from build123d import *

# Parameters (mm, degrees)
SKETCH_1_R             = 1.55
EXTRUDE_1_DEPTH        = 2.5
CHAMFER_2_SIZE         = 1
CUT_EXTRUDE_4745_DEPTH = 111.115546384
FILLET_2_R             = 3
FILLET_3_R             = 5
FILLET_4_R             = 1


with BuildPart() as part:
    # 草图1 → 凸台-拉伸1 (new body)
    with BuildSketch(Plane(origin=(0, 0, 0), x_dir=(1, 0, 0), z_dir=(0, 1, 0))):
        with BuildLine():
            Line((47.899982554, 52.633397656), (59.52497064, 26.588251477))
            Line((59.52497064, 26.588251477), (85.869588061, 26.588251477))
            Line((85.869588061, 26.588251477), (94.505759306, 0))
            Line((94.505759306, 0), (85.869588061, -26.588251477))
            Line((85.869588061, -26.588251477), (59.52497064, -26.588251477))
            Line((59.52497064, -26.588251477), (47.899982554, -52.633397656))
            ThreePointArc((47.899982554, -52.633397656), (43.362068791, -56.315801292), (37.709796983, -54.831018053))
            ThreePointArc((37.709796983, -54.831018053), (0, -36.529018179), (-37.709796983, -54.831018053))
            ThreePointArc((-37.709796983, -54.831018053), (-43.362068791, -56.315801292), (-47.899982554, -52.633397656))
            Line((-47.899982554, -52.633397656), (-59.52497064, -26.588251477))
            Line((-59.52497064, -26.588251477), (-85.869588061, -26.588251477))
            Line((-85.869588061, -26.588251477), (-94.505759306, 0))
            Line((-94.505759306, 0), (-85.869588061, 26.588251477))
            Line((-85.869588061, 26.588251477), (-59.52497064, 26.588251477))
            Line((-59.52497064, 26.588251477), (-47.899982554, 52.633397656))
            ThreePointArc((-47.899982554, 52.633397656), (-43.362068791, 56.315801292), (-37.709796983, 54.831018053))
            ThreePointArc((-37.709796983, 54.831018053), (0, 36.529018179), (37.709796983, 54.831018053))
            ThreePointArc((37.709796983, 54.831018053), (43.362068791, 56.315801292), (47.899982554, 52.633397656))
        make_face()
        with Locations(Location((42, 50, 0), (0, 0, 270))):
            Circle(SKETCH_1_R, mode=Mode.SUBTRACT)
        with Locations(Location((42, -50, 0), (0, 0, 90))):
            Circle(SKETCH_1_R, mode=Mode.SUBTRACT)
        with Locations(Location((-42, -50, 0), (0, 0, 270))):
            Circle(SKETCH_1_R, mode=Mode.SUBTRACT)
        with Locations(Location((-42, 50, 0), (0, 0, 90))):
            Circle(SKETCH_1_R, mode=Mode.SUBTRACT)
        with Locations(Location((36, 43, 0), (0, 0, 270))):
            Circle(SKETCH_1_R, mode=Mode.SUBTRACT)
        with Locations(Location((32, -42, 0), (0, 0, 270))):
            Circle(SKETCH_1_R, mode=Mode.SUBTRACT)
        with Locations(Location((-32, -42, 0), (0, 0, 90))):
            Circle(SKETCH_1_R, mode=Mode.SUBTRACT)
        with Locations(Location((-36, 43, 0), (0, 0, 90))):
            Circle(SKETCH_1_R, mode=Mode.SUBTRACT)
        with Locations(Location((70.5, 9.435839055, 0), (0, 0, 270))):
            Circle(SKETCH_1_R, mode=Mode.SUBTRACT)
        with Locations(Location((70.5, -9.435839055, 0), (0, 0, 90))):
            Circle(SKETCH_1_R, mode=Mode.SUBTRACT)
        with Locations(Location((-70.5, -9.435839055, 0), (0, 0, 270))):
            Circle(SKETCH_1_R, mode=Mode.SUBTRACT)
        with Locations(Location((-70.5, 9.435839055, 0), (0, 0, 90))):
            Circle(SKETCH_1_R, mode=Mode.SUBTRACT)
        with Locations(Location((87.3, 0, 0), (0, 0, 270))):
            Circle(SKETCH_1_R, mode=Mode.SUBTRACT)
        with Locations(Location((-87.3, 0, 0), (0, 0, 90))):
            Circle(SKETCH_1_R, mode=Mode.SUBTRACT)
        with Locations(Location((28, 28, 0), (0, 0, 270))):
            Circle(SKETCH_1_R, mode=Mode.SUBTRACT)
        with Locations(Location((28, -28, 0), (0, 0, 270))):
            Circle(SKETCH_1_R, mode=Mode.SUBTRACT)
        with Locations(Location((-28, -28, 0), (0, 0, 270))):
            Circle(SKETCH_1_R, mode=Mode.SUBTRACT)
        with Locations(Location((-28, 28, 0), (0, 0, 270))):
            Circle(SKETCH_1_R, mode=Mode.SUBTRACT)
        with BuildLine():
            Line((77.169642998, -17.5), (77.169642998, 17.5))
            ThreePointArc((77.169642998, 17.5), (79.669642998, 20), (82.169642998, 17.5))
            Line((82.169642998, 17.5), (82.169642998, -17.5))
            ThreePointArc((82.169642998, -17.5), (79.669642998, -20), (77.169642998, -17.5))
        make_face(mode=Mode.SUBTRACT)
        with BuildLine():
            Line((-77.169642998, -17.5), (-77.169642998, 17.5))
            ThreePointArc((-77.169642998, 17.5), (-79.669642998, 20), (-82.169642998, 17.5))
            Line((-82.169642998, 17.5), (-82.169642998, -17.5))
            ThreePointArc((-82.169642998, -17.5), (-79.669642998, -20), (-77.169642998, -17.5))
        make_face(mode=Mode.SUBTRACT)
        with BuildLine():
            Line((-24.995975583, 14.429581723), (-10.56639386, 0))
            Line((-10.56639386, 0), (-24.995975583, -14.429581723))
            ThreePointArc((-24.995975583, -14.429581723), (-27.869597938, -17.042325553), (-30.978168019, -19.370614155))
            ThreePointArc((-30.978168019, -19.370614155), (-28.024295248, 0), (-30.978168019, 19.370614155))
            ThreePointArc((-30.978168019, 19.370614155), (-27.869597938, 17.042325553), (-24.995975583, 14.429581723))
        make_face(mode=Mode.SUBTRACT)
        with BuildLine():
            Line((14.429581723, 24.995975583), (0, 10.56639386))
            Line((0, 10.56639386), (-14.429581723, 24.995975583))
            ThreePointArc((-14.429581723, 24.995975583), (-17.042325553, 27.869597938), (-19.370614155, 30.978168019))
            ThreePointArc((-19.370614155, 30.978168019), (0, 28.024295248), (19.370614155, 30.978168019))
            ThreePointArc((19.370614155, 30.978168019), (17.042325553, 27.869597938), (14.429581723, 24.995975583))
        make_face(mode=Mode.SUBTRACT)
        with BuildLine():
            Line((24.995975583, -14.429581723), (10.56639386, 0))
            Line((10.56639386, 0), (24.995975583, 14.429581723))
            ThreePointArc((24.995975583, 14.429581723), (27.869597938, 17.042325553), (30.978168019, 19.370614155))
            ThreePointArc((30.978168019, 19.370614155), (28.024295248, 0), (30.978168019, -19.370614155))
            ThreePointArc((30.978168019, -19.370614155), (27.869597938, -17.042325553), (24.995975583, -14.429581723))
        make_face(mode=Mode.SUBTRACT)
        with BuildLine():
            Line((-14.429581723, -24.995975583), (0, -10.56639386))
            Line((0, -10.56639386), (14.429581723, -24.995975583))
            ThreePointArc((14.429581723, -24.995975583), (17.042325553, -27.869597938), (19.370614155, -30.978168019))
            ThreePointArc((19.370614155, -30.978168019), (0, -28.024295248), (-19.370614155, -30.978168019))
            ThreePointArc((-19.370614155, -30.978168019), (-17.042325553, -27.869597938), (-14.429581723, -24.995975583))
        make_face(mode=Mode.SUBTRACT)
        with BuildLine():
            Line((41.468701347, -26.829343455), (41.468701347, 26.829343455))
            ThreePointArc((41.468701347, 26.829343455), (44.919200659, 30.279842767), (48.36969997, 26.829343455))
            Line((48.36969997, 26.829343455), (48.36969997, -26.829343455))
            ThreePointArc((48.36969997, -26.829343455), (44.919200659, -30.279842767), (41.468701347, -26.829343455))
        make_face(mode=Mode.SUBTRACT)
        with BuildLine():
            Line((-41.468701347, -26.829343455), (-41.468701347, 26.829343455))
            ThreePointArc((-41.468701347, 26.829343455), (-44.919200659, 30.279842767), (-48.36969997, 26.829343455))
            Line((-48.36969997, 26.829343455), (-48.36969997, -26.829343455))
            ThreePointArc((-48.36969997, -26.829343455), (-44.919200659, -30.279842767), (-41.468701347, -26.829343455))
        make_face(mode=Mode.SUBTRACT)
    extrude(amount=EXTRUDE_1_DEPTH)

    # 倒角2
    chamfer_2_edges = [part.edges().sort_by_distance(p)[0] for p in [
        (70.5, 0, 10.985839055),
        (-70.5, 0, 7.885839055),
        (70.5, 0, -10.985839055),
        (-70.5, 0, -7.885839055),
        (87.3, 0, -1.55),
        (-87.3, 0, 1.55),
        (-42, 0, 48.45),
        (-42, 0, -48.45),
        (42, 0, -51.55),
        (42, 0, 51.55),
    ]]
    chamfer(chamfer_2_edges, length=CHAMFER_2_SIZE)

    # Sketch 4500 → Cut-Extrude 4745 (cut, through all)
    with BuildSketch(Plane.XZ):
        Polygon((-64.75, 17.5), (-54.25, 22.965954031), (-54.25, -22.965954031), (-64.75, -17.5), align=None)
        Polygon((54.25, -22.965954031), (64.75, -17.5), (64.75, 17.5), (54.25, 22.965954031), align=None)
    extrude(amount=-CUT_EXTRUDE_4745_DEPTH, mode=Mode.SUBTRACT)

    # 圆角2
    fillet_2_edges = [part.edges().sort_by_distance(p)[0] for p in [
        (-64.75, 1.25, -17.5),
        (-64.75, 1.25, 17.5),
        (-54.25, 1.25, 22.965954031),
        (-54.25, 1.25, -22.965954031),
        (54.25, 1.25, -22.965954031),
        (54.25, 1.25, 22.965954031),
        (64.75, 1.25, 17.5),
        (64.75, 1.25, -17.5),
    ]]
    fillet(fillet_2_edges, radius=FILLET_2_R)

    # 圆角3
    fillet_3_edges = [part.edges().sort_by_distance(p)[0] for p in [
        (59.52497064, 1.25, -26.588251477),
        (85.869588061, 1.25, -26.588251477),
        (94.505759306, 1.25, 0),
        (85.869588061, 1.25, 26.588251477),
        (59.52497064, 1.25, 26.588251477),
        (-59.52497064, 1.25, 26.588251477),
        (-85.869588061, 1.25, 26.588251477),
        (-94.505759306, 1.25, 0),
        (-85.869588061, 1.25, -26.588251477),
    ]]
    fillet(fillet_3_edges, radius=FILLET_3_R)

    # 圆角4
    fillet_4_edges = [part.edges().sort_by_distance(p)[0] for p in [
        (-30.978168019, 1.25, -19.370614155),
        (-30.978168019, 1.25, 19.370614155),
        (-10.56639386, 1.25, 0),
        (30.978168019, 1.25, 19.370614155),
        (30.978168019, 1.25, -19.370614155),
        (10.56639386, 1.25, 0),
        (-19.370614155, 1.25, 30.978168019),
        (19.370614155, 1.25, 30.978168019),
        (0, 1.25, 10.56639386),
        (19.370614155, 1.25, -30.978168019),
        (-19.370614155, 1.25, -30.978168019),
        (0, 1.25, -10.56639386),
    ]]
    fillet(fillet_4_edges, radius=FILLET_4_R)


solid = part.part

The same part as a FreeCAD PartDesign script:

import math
import FreeCAD as App
import Part
import Sketcher
from FreeCAD import Vector
Q = App.Units.Quantity


def edges_at(feature, points):
    """Names of the edges that pass closest to the given points."""
    edges = feature.Shape.Edges
    near = lambda p: min(range(len(edges)), key=lambda i: edges[i].distToShape(Part.Vertex(*p))[0])
    return sorted({f"Edge{near(p) + 1}" for p in points})


def add_polygon(sketch, points):
    """Adds a closed chain of lines whose ends are joined by coincident constraints."""
    first, n = sketch.GeometryCount, len(points)
    for a, b in zip(points, points[1:] + points[:1]):
        sketch.addGeometry(Part.LineSegment(App.Vector(*a, 0), App.Vector(*b, 0)), False)
    for i in range(n):
        sketch.addConstraint(Sketcher.Constraint("Coincident", first + i, 2, first + (i + 1) % n, 1))

doc = App.newDocument("Part")
body = doc.addObject("PartDesign::Body", "Body")

sketch1 = body.newObject("Sketcher::SketchObject", "Sketch")
sketch1.AttachmentSupport = (doc.getObject("XZ_Plane"), [""])
sketch1.MapMode = "FlatFace"
sketch1.addGeometry([
    Part.LineSegment(Vector(59.5, -26.6, 0), Vector(47.9, -52.6, 0)),
    Part.ArcOfCircle(Part.Circle(Vector(42, -50, 0), Vector(0, 0, 1), 6.5), math.radians(-132), math.radians(-24)),
    Part.ArcOfCircle(Part.Circle(Vector(0, -84.5, 0), Vector(0, 0, 1), 48), math.radians(38), math.radians(142)),
    Part.ArcOfCircle(Part.Circle(Vector(-42, -50, 0), Vector(0, 0, 1), 6.5), math.radians(-156), math.radians(-48)),
    Part.LineSegment(Vector(-47.9, -52.6, 0), Vector(-59.5, -26.6, 0)),
    Part.LineSegment(Vector(-59.5, -26.6, 0), Vector(-85.9, -26.6, 0)),
    Part.LineSegment(Vector(-85.9, -26.6, 0), Vector(-94.5, 0, 0)),
    Part.LineSegment(Vector(-94.5, 0, 0), Vector(-85.9, 26.6, 0)),
    Part.LineSegment(Vector(-85.9, 26.6, 0), Vector(-59.5, 26.6, 0)),
    Part.LineSegment(Vector(-59.5, 26.6, 0), Vector(-47.9, 52.6, 0)),
    Part.ArcOfCircle(Part.Circle(Vector(-42, 50, 0), Vector(0, 0, 1), 6.5), math.radians(48), math.radians(156)),
    Part.ArcOfCircle(Part.Circle(Vector(0, 84.5, 0), Vector(0, 0, 1), 48), math.radians(-142), math.radians(-38)),
    Part.ArcOfCircle(Part.Circle(Vector(42, 50, 0), Vector(0, 0, 1), 6.5), math.radians(24), math.radians(132)),
    Part.LineSegment(Vector(47.9, 52.6, 0), Vector(59.5, 26.6, 0)),
    Part.LineSegment(Vector(59.5, 26.6, 0), Vector(85.9, 26.6, 0)),
    Part.LineSegment(Vector(85.9, 26.6, 0), Vector(94.5, 0, 0)),
    Part.LineSegment(Vector(94.5, 0, 0), Vector(85.9, -26.6, 0)),
    Part.LineSegment(Vector(85.9, -26.6, 0), Vector(59.5, -26.6, 0)),
    Part.Circle(Vector(42, 50, 0), Vector(0, 0, 1), 1.6),
    Part.Circle(Vector(32, 42, 0), Vector(0, 0, 1), 1.6),
    Part.Circle(Vector(28, 28, 0), Vector(0, 0, 1), 1.6),
    Part.Circle(Vector(70.5, 9.4, 0), Vector(0, 0, 1), 1.6),
    Part.Circle(Vector(-42, 50, 0), Vector(0, 0, 1), 1.6),
    Part.Circle(Vector(-32, 42, 0), Vector(0, 0, 1), 1.6),
    Part.Circle(Vector(-28, 28, 0), Vector(0, 0, 1), 1.6),
    Part.LineSegment(Vector(-14.4, 25, 0), Vector(0, 10.6, 0)),
    Part.LineSegment(Vector(0, 10.6, 0), Vector(14.4, 25, 0)),
    Part.ArcOfCircle(Part.Circle(Vector(-14.5, 53.9, 0), Vector(0, 0, 1), 40.9), math.radians(-45), math.radians(-34.11)),
    Part.ArcOfCircle(Part.Circle(Vector(0, 93, 0), Vector(0, 0, 1), 65), math.radians(-107), math.radians(-73)),
    Part.ArcOfCircle(Part.Circle(Vector(14.5, 53.9, 0), Vector(0, 0, 1), 40.9), math.radians(-145.89), math.radians(-135)),
    Part.Circle(Vector(-70.5, 9.4, 0), Vector(0, 0, 1), 1.6),
    Part.Circle(Vector(87.3, 0, 0), Vector(0, 0, 1), 1.6),
    Part.LineSegment(Vector(77.2, 17.5, 0), Vector(77.2, -17.5, 0)),
    Part.ArcOfCircle(Part.Circle(Vector(79.7, -17.5, 0), Vector(0, 0, 1), 2.5), math.radians(180), math.radians(360)),
    Part.LineSegment(Vector(82.2, -17.5, 0), Vector(82.2, 17.5, 0)),
    Part.ArcOfCircle(Part.Circle(Vector(79.7, 17.5, 0), Vector(0, 0, 1), 2.5), math.radians(0), math.radians(180)),
    Part.Circle(Vector(70.5, -9.4, 0), Vector(0, 0, 1), 1.6),
    Part.LineSegment(Vector(41.5, 26.8, 0), Vector(41.5, -26.8, 0)),
    Part.ArcOfCircle(Part.Circle(Vector(44.9, -26.8, 0), Vector(0, 0, 1), 3.5), math.radians(180), math.radians(360)),
    Part.LineSegment(Vector(48.4, -26.8, 0), Vector(48.4, 26.8, 0)),
    Part.ArcOfCircle(Part.Circle(Vector(44.9, 26.8, 0), Vector(0, 0, 1), 3.5), math.radians(0), math.radians(180)),
    Part.LineSegment(Vector(25, 14.4, 0), Vector(10.6, 0, 0)),
    Part.LineSegment(Vector(10.6, 0, 0), Vector(25, -14.4, 0)),
    Part.ArcOfCircle(Part.Circle(Vector(53.9, 14.5, 0), Vector(0, 0, 1), 40.9), math.radians(-135), math.radians(-124.11)),
    Part.ArcOfCircle(Part.Circle(Vector(93, 0, 0), Vector(0, 0, 1), 65), math.radians(163), math.radians(197)),
    Part.ArcOfCircle(Part.Circle(Vector(53.9, -14.5, 0), Vector(0, 0, 1), 40.9), math.radians(124.11), math.radians(135)),
    Part.Circle(Vector(28, -28, 0), Vector(0, 0, 1), 1.6),
    Part.Circle(Vector(36, -43, 0), Vector(0, 0, 1), 1.6),
    Part.Circle(Vector(42, -50, 0), Vector(0, 0, 1), 1.6),
    Part.LineSegment(Vector(-25, -14.4, 0), Vector(-10.6, 0, 0)),
    Part.LineSegment(Vector(-10.6, 0, 0), Vector(-25, 14.4, 0)),
    Part.ArcOfCircle(Part.Circle(Vector(-53.9, -14.5, 0), Vector(0, 0, 1), 40.9), math.radians(45), math.radians(55.89)),
    Part.ArcOfCircle(Part.Circle(Vector(-93, 0, 0), Vector(0, 0, 1), 65), math.radians(-17), math.radians(17)),
    Part.ArcOfCircle(Part.Circle(Vector(-53.9, 14.5, 0), Vector(0, 0, 1), 40.9), math.radians(-55.89), math.radians(-45)),
    Part.LineSegment(Vector(14.4, -25, 0), Vector(0, -10.6, 0)),
    Part.LineSegment(Vector(0, -10.6, 0), Vector(-14.4, -25, 0)),
    Part.ArcOfCircle(Part.Circle(Vector(14.5, -53.9, 0), Vector(0, 0, 1), 40.9), math.radians(135), math.radians(145.89)),
    Part.ArcOfCircle(Part.Circle(Vector(0, -93, 0), Vector(0, 0, 1), 65), math.radians(73), math.radians(107)),
    Part.ArcOfCircle(Part.Circle(Vector(-14.5, -53.9, 0), Vector(0, 0, 1), 40.9), math.radians(34.11), math.radians(45)),
    Part.ArcOfCircle(Part.Circle(Vector(-44.9, 26.8, 0), Vector(0, 0, 1), 3.5), math.radians(0), math.radians(180)),
    Part.LineSegment(Vector(-48.4, 26.8, 0), Vector(-48.4, -26.8, 0)),
    Part.ArcOfCircle(Part.Circle(Vector(-44.9, -26.8, 0), Vector(0, 0, 1), 3.5), math.radians(180), math.radians(360)),
    Part.LineSegment(Vector(-41.5, -26.8, 0), Vector(-41.5, 26.8, 0)),
    Part.ArcOfCircle(Part.Circle(Vector(-79.7, 17.5, 0), Vector(0, 0, 1), 2.5), math.radians(0), math.radians(180)),
    Part.LineSegment(Vector(-82.2, 17.5, 0), Vector(-82.2, -17.5, 0)),
    Part.ArcOfCircle(Part.Circle(Vector(-79.7, -17.5, 0), Vector(0, 0, 1), 2.5), math.radians(180), math.radians(360)),
    Part.LineSegment(Vector(-77.2, -17.5, 0), Vector(-77.2, 17.5, 0)),
    Part.Circle(Vector(-87.3, 0, 0), Vector(0, 0, 1), 1.6),
    Part.Circle(Vector(-70.5, -9.4, 0), Vector(0, 0, 1), 1.6),
    Part.Circle(Vector(-28, -28, 0), Vector(0, 0, 1), 1.6),
    Part.Circle(Vector(-36, -43, 0), Vector(0, 0, 1), 1.6),
    Part.Circle(Vector(-42, -50, 0), Vector(0, 0, 1), 1.6),
], False)
sketch1.addConstraint([
    Sketcher.Constraint("Tangent", 0, 2, 1, 2),
    Sketcher.Constraint("Coincident", 1, 1, 2, 1),
    Sketcher.Constraint("Coincident", 2, 2, 3, 2),
    Sketcher.Constraint("Tangent", 3, 1, 4, 1),
    Sketcher.Constraint("Coincident", 4, 2, 5, 1),
    Sketcher.Constraint("Coincident", 5, 2, 6, 1),
    Sketcher.Constraint("Coincident", 6, 2, 7, 1),
    Sketcher.Constraint("Coincident", 7, 2, 8, 1),
    Sketcher.Constraint("Coincident", 8, 2, 9, 1),
    Sketcher.Constraint("Tangent", 9, 2, 10, 2),
    Sketcher.Constraint("Coincident", 10, 1, 11, 1),
    Sketcher.Constraint("Coincident", 11, 2, 12, 2),
    Sketcher.Constraint("Tangent", 12, 1, 13, 1),
    Sketcher.Constraint("Coincident", 13, 2, 14, 1),
    Sketcher.Constraint("Coincident", 14, 2, 15, 1),
    Sketcher.Constraint("Coincident", 15, 2, 16, 1),
    Sketcher.Constraint("Coincident", 16, 2, 17, 1),
    Sketcher.Constraint("Coincident", 17, 2, 0, 1),
    Sketcher.Constraint("Coincident", 25, 2, 26, 1),
    Sketcher.Constraint("Tangent", 26, 2, 27, 1),
    Sketcher.Constraint("Coincident", 27, 2, 28, 2),
    Sketcher.Constraint("Coincident", 28, 1, 29, 1),
    Sketcher.Constraint("Tangent", 29, 2, 25, 1),
    Sketcher.Constraint("Tangent", 32, 2, 33, 1),
    Sketcher.Constraint("Tangent", 33, 2, 34, 1),
    Sketcher.Constraint("Tangent", 34, 2, 35, 1),
    Sketcher.Constraint("Tangent", 35, 2, 32, 1),
    Sketcher.Constraint("Tangent", 37, 2, 38, 1),
    Sketcher.Constraint("Tangent", 38, 2, 39, 1),
    Sketcher.Constraint("Tangent", 39, 2, 40, 1),
    Sketcher.Constraint("Tangent", 40, 2, 37, 1),
    Sketcher.Constraint("Coincident", 41, 2, 42, 1),
    Sketcher.Constraint("Tangent", 42, 2, 43, 1),
    Sketcher.Constraint("Coincident", 43, 2, 44, 2),
    Sketcher.Constraint("Coincident", 44, 1, 45, 1),
    Sketcher.Constraint("Tangent", 45, 2, 41, 1),
    Sketcher.Constraint("Coincident", 49, 2, 50, 1),
    Sketcher.Constraint("Tangent", 50, 2, 51, 1),
    Sketcher.Constraint("Coincident", 51, 2, 52, 2),
    Sketcher.Constraint("Coincident", 52, 1, 53, 1),
    Sketcher.Constraint("Tangent", 53, 2, 49, 1),
    Sketcher.Constraint("Coincident", 54, 2, 55, 1),
    Sketcher.Constraint("Tangent", 55, 2, 56, 1),
    Sketcher.Constraint("Coincident", 56, 2, 57, 2),
    Sketcher.Constraint("Coincident", 57, 1, 58, 1),
    Sketcher.Constraint("Tangent", 58, 2, 54, 1),
    Sketcher.Constraint("Tangent", 59, 2, 60, 1),
    Sketcher.Constraint("Tangent", 60, 2, 61, 1),
    Sketcher.Constraint("Tangent", 61, 2, 62, 1),
    Sketcher.Constraint("Tangent", 62, 2, 59, 1),
    Sketcher.Constraint("Tangent", 63, 2, 64, 1),
    Sketcher.Constraint("Tangent", 64, 2, 65, 1),
    Sketcher.Constraint("Tangent", 65, 2, 66, 1),
    Sketcher.Constraint("Tangent", 66, 2, 63, 1),
    Sketcher.Constraint("Horizontal", 5),
    Sketcher.Constraint("Horizontal", 8),
    Sketcher.Constraint("Horizontal", 14),
    Sketcher.Constraint("Horizontal", 17),
    Sketcher.Constraint("Vertical", 32),
    Sketcher.Constraint("Vertical", 34),
    Sketcher.Constraint("Vertical", 37),
    Sketcher.Constraint("Vertical", 39),
    Sketcher.Constraint("Vertical", 60),
    Sketcher.Constraint("Vertical", 62),
    Sketcher.Constraint("Vertical", 64),
    Sketcher.Constraint("Vertical", 66),
    Sketcher.Constraint("Coincident", 18, 3, 12, 3),
    Sketcher.Constraint("Coincident", 22, 3, 10, 3),
    Sketcher.Constraint("Coincident", 48, 3, 1, 3),
    Sketcher.Constraint("Coincident", 71, 3, 3, 3),
    Sketcher.Constraint("Equal", 1, 3),
    Sketcher.Constraint("Equal", 3, 10),
    Sketcher.Constraint("Equal", 2, 11),
    Sketcher.Constraint("Equal", 10, 12),
    Sketcher.Constraint("Equal", 18, 19),
    Sketcher.Constraint("Equal", 19, 20),
    Sketcher.Constraint("Equal", 20, 21),
    Sketcher.Constraint("Equal", 21, 22),
    Sketcher.Constraint("Equal", 22, 23),
    Sketcher.Constraint("Equal", 23, 24),
    Sketcher.Constraint("Equal", 27, 29),
    Sketcher.Constraint("Equal", 24, 30),
    Sketcher.Constraint("Equal", 30, 31),
    Sketcher.Constraint("Equal", 31, 36),
    Sketcher.Constraint("Equal", 29, 43),
    Sketcher.Constraint("Equal", 28, 44),
    Sketcher.Constraint("Equal", 43, 45),
    Sketcher.Constraint("Equal", 36, 46),
    Sketcher.Constraint("Equal", 46, 47),
    Sketcher.Constraint("Equal", 47, 48),
    Sketcher.Constraint("Equal", 45, 51),
    Sketcher.Constraint("Equal", 44, 52),
    Sketcher.Constraint("Equal", 51, 53),
    Sketcher.Constraint("Equal", 53, 56),
    Sketcher.Constraint("Equal", 52, 57),
    Sketcher.Constraint("Equal", 56, 58),
    Sketcher.Constraint("Equal", 40, 59),
    Sketcher.Constraint("Equal", 35, 63),
    Sketcher.Constraint("Equal", 48, 67),
    Sketcher.Constraint("Equal", 67, 68),
    Sketcher.Constraint("Equal", 68, 69),
    Sketcher.Constraint("Equal", 69, 70),
    Sketcher.Constraint("Equal", 70, 71),
    Sketcher.Constraint("Symmetric", 1, 3, 10, 3, -1, 1),
    Sketcher.Constraint("Symmetric", 2, 3, 11, 3, -1, 1),
    Sketcher.Constraint("Symmetric", 3, 3, 12, 3, -1, 1),
    Sketcher.Constraint("Symmetric", 30, 3, 36, 3, -1, 1),
    Sketcher.Constraint("Symmetric", 24, 3, 46, 3, -1, 1),
    Sketcher.Constraint("Symmetric", 43, 3, 51, 3, -1, 1),
    Sketcher.Constraint("Symmetric", 44, 3, 52, 3, -1, 1),
    Sketcher.Constraint("Symmetric", 45, 3, 53, 3, -1, 1),
    Sketcher.Constraint("Symmetric", 27, 3, 56, 3, -1, 1),
    Sketcher.Constraint("Symmetric", 28, 3, 57, 3, -1, 1),
    Sketcher.Constraint("Symmetric", 29, 3, 58, 3, -1, 1),
    Sketcher.Constraint("Symmetric", 38, 3, 59, 3, -1, 1),
    Sketcher.Constraint("Symmetric", 33, 3, 63, 3, -1, 1),
    Sketcher.Constraint("Symmetric", 31, 3, 67, 3, -1, 1),
    Sketcher.Constraint("Symmetric", 21, 3, 68, 3, -1, 1),
    Sketcher.Constraint("Symmetric", 20, 3, 69, 3, -1, 1),
    Sketcher.Constraint("Symmetric", 4, 2, 13, 2, -1, 1),
    Sketcher.Constraint("Symmetric", 6, 2, 15, 2, -1, 1),
    Sketcher.Constraint("Symmetric", 7, 2, 16, 2, -1, 1),
    Sketcher.Constraint("Symmetric", 41, 2, 49, 2, -1, 1),
    Sketcher.Constraint("Symmetric", 25, 2, 54, 2, -1, 1),
    Sketcher.Constraint("Symmetric", 1, 3, 3, 3, -2),
    Sketcher.Constraint("Symmetric", 19, 3, 23, 3, -2),
    Sketcher.Constraint("Symmetric", 20, 3, 24, 3, -2),
    Sketcher.Constraint("Symmetric", 27, 3, 29, 3, -2),
    Sketcher.Constraint("Symmetric", 21, 3, 30, 3, -2),
    Sketcher.Constraint("Symmetric", 45, 3, 51, 3, -2),
    Sketcher.Constraint("Symmetric", 47, 3, 70, 3, -2),
    Sketcher.Constraint("Symmetric", 8, 2, 13, 2, -2),
    Sketcher.Constraint("PointOnObject", 2, 3, -2),
    Sketcher.Constraint("PointOnObject", 28, 3, -2),
    Sketcher.Constraint("PointOnObject", 31, 3, -1),
    Sketcher.Constraint("PointOnObject", 44, 3, -1),
    Sketcher.Constraint("PointOnObject", 6, 2, -1),
    Sketcher.Constraint("PointOnObject", 25, 2, -2),
    Sketcher.Constraint("PointOnObject", 41, 2, -1),
    Sketcher.Constraint("Parallel", 0, 9),
    Sketcher.Constraint("Parallel", 6, 15),
    Sketcher.Constraint("Perpendicular", 25, 26),
    Sketcher.Constraint("Parallel", 26, 41),
    Sketcher.Constraint("Horizontal", 40, 3, 59, 3),
    Sketcher.Constraint("Horizontal", 38, 3, 61, 3),
    Sketcher.Constraint("Horizontal", 35, 3, 63, 3),
    Sketcher.Constraint("Horizontal", 33, 3, 65, 3),
    Sketcher.Constraint("Vertical", 5, 2, 7, 2),
    Sketcher.Constraint("Equal", 26, 41),
    Sketcher.Constraint("Radius", 2, 48.0),
    Sketcher.Constraint("Diameter", 18, 3.1),
    Sketcher.Constraint("Radius", 33, 2.5),
    Sketcher.Constraint("DistanceY", 32, 2, 32, 1, 35.0),
    Sketcher.Constraint("DistanceX", -1, 1, 1, 3, 42.0),
    Sketcher.Constraint("DistanceY", 1, 3, -1, 1, 50.0),
    Sketcher.Constraint("DistanceX", -1, 1, 19, 3, 32.0),
    Sketcher.Constraint("DistanceY", -1, 1, 19, 3, 42.0),
    Sketcher.Constraint("DistanceX", -1, 1, 20, 3, 28.0),
    Sketcher.Constraint("DistanceY", -1, 1, 20, 3, 28.0),
    Sketcher.Constraint("DistanceX", -1, 1, 47, 3, 36.0),
    Sketcher.Constraint("DistanceY", 47, 3, -1, 1, 43.0),
    Sketcher.Constraint("DistanceX", -1, 1, 21, 3, 70.5),
    Sketcher.Constraint("DistanceX", -1, 1, 31, 3, 87.3),
    Sketcher.Constraint("Radius", 38, 3.450499),
    Sketcher.Constraint("Radius", 27, 40.885292),
    Sketcher.Constraint("Radius", 1, 6.461004),
    Sketcher.Constraint("Radius", 28, 64.990283),
    Sketcher.Constraint("DistanceX", -1, 1, 38, 3, 44.919201),
    Sketcher.Constraint("Distance", 25, 20.40651),
    Sketcher.Constraint("DistanceX", 5, 2, 5, 1, 26.344617),
    Sketcher.Constraint("DistanceY", 37, 2, 37, 1, 53.658687),
    Sketcher.Constraint("DistanceY", 2, 3, -1, 1, 84.529018),
    Sketcher.Constraint("DistanceY", -1, 1, 21, 3, 9.435839),
    Sketcher.Constraint("DistanceY", -1, 1, 28, 3, 93.014579),
    Sketcher.Constraint("DistanceX", -1, 1, 44, 3, 93.014579),
    Sketcher.Constraint("DistanceX", 4, 2, -1, 1, 59.524971),
    Sketcher.Constraint("DistanceY", 4, 2, -1, 1, 26.588251),
    Sketcher.Constraint("DistanceX", 6, 2, -1, 1, 94.505759),
    Sketcher.Constraint("DistanceY", -1, 1, 27, 2, 30.978168),
    Sketcher.Constraint("DistanceX", -1, 1, 43, 2, 30.978168),
    Sketcher.Constraint("DistanceX", -1, 1, 33, 3, 79.669643),
])
pad1 = body.newObject("PartDesign::Pad", "Pad")
pad1.Profile = sketch1
pad1.Length = 2.5
pad1.Reversed = True
doc.recompute()

chamfer = body.newObject("PartDesign::Chamfer", "Chamfer")
chamfer.Base = (pad1, edges_at(pad1, [
    (70.5, 0, 10.986),
    (-70.5, 0, 7.886),
    (70.5, 0, -10.986),
    (-70.5, 0, -7.886),
    (87.3, 0, -1.55),
    (-87.3, 0, 1.55),
    (-42, 0, 48.45),
    (-42, 0, -48.45),
    (42, 0, -51.55),
    (42, 0, 51.55),
]))
chamfer.Size = 1

sketch2 = body.newObject("Sketcher::SketchObject", "Sketch001")
sketch2.AttachmentSupport = (doc.getObject("XZ_Plane"), [""])
sketch2.MapMode = "FlatFace"
add_polygon(sketch2, [(-54, 23), (-65, 18), (-65, -18), (-54, -23)])
add_polygon(sketch2, [(54, -23), (65, -18), (65, 18), (54, 23)])
sketch2.addConstraint([
    Sketcher.Constraint("Vertical", 1),
    Sketcher.Constraint("Vertical", 3),
    Sketcher.Constraint("Vertical", 5),
    Sketcher.Constraint("Vertical", 7),
    Sketcher.Constraint("Symmetric", 0, 2, 4, 2, -1, 1),
    Sketcher.Constraint("Symmetric", 2, 2, 6, 2, -1, 1),
    Sketcher.Constraint("Parallel", 0, 4),
    Sketcher.Constraint("Parallel", 2, 6),
    Sketcher.Constraint("Horizontal", 1, 2, 4, 2),
    Sketcher.Constraint("Horizontal", 3, 2, 6, 2),
    Sketcher.Constraint("DistanceY", 1, 2, 1, 1, 35.0),
    Sketcher.Constraint("Angle", 0, Q("-152.5 deg")),
    Sketcher.Constraint("DistanceX", 2, 2, 4, 2, 119.0),
    Sketcher.Constraint("DistanceX", 1, 2, 2, 2, 10.5),
])
pocket1 = body.newObject("PartDesign::Pocket", "Pocket")
pocket1.Profile = sketch2
pocket1.Type = "ThroughAll"
doc.recompute()

fillet = body.newObject("PartDesign::Fillet", "Fillet")
fillet.Base = (pocket1, edges_at(pocket1, [
    (-64.75, 1.25, -17.5),
    (-64.75, 1.25, 17.5),
    (-54.25, 1.25, 22.966),
    (-54.25, 1.25, -22.966),
    (54.25, 1.25, -22.966),
    (54.25, 1.25, 22.966),
    (64.75, 1.25, 17.5),
    (64.75, 1.25, -17.5),
]))
fillet.Radius = 3
doc.recompute()

fillet2 = body.newObject("PartDesign::Fillet", "Fillet001")
fillet2.Base = (fillet, edges_at(fillet, [
    (59.525, 1.25, -26.588),
    (85.87, 1.25, -26.588),
    (94.506, 1.25, 0),
    (85.87, 1.25, 26.588),
    (59.525, 1.25, 26.588),
    (-59.525, 1.25, 26.588),
    (-85.87, 1.25, 26.588),
    (-94.506, 1.25, 0),
    (-85.87, 1.25, -26.588),
]))
fillet2.Radius = 5
doc.recompute()

fillet3 = body.newObject("PartDesign::Fillet", "Fillet002")
fillet3.Base = (fillet2, edges_at(fillet2, [
    (-30.978, 1.25, -19.371),
    (-30.978, 1.25, 19.371),
    (-10.566, 1.25, 0),
    (30.978, 1.25, 19.371),
    (30.978, 1.25, -19.371),
    (10.566, 1.25, 0),
    (-19.371, 1.25, 30.978),
    (19.371, 1.25, 30.978),
    (0, 1.25, 10.566),
    (19.371, 1.25, -30.978),
    (-19.371, 1.25, -30.978),
    (0, 1.25, -10.566),
]))
fillet3.Radius = 1

doc.recompute()
